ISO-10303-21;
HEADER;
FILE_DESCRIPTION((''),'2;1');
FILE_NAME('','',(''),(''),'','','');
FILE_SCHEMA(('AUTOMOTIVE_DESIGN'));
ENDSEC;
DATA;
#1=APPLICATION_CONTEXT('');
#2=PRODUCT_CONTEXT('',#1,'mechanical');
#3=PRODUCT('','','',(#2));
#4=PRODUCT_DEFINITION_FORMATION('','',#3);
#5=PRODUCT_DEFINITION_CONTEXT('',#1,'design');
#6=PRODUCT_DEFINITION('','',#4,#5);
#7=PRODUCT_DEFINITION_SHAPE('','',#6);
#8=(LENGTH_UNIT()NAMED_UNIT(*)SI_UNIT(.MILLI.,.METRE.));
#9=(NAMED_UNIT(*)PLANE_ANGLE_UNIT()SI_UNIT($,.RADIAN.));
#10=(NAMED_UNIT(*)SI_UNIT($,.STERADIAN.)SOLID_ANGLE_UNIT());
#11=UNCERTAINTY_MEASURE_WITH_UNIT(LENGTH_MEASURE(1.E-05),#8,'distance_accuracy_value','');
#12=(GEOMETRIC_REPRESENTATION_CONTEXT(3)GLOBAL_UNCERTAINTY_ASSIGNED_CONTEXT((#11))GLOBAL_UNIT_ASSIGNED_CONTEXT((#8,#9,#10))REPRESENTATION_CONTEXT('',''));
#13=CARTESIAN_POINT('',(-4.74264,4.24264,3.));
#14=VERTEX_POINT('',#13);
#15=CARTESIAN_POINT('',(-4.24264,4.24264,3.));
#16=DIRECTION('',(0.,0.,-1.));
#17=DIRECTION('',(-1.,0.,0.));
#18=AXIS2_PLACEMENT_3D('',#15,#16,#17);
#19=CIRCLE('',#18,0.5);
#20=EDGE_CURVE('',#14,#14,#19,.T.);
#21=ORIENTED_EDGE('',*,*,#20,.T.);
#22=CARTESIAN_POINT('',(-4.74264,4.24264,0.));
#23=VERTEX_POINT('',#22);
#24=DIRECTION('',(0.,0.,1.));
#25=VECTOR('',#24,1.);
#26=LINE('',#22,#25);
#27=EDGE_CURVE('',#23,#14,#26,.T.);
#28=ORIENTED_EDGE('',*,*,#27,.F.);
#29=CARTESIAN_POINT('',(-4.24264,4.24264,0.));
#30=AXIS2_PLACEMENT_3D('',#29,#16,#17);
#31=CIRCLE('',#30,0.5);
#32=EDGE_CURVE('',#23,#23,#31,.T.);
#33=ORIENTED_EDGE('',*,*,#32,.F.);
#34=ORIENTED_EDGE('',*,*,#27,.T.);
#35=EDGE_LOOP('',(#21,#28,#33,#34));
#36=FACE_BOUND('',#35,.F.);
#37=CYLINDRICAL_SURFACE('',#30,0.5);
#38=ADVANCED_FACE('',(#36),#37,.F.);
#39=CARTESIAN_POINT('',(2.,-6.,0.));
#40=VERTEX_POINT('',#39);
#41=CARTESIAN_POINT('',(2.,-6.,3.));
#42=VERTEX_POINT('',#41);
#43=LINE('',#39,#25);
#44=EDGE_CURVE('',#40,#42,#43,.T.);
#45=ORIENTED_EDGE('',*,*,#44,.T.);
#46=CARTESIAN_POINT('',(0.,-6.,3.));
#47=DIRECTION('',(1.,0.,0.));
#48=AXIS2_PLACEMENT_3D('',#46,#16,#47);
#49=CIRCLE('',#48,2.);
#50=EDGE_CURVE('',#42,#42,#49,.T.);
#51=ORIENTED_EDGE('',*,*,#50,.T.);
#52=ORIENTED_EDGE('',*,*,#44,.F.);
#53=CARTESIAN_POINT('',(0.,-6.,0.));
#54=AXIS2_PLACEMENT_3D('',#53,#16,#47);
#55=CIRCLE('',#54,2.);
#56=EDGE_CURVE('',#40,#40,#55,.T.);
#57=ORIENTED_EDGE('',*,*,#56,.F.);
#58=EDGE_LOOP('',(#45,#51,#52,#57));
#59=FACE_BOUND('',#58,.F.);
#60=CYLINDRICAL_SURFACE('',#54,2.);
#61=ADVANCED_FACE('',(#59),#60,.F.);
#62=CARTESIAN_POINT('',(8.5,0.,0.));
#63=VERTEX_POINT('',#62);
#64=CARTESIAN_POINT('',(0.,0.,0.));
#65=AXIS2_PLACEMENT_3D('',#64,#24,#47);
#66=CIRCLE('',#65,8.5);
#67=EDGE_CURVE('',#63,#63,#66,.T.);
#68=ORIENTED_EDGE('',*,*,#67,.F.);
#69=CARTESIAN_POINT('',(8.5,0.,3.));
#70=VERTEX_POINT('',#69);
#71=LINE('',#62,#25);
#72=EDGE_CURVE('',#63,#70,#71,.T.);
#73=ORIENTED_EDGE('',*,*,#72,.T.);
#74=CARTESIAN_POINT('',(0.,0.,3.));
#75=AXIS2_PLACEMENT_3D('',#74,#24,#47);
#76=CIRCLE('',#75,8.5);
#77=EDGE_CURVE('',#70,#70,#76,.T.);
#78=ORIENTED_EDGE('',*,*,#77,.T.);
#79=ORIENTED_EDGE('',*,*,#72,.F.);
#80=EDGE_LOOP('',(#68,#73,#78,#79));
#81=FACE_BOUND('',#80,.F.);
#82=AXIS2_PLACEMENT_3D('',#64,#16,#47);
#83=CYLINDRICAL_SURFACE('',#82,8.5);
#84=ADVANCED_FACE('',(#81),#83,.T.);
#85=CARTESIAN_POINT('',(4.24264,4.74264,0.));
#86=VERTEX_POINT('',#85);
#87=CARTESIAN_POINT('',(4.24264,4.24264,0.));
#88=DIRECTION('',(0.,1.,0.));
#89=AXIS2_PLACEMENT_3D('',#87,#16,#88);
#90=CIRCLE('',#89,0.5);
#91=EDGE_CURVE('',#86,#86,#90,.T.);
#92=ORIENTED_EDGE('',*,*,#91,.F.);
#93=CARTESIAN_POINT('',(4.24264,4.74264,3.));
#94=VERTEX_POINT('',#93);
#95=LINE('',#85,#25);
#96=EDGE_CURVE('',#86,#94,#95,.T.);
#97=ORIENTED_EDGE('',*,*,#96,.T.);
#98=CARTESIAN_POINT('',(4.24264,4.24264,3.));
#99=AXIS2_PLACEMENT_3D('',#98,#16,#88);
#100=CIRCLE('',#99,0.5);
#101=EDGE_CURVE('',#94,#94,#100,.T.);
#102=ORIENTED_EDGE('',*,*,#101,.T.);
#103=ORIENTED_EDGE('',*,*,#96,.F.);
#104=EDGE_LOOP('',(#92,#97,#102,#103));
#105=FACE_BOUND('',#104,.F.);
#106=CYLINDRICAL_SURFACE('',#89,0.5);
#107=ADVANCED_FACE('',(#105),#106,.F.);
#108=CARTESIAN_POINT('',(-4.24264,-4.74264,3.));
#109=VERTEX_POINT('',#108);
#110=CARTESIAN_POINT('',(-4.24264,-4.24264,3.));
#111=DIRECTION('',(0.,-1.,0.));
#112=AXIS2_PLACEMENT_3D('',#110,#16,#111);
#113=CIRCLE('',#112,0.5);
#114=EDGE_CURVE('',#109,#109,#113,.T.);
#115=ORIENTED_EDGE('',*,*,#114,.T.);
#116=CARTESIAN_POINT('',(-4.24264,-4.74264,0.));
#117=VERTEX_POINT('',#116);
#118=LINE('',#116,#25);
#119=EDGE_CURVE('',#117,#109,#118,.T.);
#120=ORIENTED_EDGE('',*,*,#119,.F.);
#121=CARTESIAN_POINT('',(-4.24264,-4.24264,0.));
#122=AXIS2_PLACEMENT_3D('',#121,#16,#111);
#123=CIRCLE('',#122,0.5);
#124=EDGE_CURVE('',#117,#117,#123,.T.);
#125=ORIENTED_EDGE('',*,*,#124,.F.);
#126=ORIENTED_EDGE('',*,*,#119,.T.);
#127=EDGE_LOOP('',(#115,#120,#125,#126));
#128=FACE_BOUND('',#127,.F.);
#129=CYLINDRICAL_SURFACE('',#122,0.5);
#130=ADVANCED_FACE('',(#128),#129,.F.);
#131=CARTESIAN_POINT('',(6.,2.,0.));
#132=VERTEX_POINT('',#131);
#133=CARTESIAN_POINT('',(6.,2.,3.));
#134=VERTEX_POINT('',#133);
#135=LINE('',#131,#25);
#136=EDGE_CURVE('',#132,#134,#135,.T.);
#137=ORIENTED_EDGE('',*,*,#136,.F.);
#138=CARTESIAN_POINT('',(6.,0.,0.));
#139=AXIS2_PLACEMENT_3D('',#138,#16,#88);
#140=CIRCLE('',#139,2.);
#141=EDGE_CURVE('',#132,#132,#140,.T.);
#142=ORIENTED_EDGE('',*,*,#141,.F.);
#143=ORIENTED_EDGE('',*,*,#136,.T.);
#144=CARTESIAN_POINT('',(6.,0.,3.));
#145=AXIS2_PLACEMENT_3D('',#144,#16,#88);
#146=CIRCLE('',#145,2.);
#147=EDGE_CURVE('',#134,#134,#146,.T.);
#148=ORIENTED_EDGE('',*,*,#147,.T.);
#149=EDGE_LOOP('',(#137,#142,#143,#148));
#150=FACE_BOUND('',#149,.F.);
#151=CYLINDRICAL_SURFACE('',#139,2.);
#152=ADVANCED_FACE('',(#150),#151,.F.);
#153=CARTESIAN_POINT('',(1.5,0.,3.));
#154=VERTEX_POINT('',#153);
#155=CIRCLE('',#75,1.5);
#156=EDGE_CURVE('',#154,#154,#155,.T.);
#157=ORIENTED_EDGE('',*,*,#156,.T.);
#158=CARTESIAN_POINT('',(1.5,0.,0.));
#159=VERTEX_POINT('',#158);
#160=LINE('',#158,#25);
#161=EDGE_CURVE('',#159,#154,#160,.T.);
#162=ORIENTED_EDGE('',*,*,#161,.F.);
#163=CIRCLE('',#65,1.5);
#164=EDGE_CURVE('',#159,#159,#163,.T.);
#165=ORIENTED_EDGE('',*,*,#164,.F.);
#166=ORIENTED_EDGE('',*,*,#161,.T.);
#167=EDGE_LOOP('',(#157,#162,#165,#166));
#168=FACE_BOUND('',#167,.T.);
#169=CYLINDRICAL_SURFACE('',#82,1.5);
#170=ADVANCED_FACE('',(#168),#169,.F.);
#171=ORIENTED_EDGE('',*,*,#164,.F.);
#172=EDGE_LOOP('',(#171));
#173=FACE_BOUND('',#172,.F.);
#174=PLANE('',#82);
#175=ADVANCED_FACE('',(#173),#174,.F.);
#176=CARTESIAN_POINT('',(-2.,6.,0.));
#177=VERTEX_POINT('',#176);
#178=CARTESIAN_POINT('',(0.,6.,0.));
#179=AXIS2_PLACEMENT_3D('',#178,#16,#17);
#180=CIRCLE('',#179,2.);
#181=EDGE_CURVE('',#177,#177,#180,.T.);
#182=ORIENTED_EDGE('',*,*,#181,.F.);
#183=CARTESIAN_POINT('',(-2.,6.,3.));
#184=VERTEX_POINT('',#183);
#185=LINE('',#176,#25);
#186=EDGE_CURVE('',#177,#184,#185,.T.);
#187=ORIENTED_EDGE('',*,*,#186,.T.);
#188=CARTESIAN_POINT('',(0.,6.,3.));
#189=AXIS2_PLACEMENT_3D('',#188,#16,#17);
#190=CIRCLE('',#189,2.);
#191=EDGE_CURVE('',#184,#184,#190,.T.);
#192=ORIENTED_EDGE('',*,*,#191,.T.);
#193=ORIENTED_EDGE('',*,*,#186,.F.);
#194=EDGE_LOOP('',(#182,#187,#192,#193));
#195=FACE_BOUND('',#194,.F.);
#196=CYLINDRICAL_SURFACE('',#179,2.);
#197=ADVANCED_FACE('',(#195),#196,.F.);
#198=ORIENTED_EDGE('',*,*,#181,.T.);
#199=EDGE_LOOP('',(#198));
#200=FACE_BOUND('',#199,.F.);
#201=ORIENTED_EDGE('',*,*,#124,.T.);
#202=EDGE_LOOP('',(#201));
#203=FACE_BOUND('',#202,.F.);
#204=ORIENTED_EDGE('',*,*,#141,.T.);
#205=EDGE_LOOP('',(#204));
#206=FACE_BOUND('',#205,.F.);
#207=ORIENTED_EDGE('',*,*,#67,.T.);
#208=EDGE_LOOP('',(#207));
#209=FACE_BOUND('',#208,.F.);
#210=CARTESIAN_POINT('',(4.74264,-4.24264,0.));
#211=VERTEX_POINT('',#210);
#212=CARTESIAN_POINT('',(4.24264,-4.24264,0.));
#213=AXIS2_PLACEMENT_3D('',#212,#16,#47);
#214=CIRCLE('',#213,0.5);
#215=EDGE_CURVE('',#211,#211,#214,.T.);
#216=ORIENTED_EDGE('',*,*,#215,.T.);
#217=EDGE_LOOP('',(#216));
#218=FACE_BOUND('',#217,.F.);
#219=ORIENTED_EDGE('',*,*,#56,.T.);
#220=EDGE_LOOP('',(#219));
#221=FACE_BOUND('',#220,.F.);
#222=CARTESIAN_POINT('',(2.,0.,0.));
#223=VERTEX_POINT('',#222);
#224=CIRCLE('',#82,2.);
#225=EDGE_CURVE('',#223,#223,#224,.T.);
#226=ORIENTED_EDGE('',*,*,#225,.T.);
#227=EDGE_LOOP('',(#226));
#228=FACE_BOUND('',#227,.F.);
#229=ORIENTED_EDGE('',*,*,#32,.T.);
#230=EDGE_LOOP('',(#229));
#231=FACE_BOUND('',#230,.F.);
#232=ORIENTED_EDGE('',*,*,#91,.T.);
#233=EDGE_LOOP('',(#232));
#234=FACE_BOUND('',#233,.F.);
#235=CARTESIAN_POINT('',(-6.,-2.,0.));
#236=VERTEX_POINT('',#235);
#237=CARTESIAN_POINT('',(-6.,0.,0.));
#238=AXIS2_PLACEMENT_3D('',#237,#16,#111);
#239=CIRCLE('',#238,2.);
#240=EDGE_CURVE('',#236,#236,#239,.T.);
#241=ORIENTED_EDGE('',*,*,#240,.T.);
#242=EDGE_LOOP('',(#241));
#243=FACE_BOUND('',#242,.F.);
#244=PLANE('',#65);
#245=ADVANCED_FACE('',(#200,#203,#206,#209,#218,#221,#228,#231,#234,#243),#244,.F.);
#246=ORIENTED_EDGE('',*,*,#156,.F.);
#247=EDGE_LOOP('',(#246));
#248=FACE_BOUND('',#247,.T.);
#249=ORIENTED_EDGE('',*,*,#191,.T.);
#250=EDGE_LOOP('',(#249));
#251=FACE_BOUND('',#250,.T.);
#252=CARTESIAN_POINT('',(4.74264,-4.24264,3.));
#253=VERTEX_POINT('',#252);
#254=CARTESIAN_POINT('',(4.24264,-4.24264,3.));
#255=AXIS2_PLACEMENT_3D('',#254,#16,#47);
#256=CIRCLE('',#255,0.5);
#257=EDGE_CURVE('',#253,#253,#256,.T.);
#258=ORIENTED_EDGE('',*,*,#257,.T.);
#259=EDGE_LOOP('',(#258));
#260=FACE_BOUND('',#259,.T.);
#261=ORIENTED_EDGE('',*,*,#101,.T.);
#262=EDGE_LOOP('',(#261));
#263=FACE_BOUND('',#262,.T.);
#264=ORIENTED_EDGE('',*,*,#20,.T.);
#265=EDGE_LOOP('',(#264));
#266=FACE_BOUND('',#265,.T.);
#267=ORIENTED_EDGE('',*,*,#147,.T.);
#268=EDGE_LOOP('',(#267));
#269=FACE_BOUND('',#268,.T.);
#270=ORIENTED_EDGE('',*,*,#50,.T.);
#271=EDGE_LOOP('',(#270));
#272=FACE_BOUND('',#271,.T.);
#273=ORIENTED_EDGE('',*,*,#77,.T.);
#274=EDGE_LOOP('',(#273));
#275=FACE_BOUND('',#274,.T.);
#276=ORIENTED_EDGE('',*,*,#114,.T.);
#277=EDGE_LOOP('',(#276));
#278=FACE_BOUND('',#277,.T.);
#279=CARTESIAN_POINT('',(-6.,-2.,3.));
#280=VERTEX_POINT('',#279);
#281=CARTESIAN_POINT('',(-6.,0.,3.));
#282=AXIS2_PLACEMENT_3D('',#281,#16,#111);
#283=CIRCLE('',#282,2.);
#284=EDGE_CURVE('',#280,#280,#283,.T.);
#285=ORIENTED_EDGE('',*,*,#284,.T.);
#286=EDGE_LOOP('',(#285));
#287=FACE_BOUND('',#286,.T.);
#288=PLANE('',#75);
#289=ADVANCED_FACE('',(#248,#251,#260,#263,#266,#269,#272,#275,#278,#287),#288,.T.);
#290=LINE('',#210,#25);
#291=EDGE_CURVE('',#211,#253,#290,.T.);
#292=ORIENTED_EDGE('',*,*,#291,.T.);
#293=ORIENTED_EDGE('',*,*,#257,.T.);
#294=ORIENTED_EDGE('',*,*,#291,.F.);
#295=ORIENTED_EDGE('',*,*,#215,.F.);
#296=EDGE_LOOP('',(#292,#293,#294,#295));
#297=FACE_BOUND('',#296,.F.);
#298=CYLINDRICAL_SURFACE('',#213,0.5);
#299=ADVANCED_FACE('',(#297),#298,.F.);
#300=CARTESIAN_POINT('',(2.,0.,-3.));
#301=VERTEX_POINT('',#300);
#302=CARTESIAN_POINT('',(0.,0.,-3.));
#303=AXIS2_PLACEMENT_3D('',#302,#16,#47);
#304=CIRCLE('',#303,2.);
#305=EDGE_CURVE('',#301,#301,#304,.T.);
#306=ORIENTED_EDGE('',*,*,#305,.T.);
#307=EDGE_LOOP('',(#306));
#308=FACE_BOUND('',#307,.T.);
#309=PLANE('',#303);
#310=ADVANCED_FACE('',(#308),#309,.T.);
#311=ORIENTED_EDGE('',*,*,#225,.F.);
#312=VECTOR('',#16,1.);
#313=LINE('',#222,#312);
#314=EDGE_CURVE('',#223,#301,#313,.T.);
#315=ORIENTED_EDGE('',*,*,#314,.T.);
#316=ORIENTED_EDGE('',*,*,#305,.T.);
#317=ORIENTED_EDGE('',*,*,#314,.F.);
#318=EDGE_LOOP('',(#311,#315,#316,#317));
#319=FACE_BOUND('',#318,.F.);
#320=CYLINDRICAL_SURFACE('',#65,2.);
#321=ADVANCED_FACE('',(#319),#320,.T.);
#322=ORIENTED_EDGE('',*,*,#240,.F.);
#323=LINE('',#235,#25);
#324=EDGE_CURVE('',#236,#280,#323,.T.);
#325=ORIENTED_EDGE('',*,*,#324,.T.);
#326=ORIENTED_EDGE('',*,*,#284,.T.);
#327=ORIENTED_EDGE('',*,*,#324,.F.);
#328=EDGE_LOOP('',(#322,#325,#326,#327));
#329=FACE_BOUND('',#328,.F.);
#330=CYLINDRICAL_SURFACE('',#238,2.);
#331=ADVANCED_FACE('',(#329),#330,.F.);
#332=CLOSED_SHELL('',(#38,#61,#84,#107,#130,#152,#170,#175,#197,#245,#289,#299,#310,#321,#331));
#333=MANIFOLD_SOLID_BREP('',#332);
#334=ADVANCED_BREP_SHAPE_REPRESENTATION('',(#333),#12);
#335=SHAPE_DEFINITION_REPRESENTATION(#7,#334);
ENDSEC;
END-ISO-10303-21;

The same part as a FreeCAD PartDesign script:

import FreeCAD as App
import Part
import Sketcher
from FreeCAD import Vector
Q = App.Units.Quantity

doc = App.newDocument("Part")
body = doc.addObject("PartDesign::Body", "Body")

# Sketch on XY plane
sketch1 = body.newObject("Sketcher::SketchObject", "Sketch")
sketch1.AttachmentSupport = (doc.getObject("XY_Plane"), [""])
sketch1.MapMode = "FlatFace"
sketch1.addGeometry([
    Part.Circle(Vector(0, 0, 0), Vector(0, 0, 1), 8.5),
    Part.Circle(Vector(0, 0, 0), Vector(0, 0, 1), 1.5),
], False)
sketch1.addConstraint([
    Sketcher.Constraint("Coincident", 0, 3, -1, 1),
    Sketcher.Constraint("Coincident", 1, 3, -1, 1),
    Sketcher.Constraint("Diameter", 0, Q("17 mm")),
    Sketcher.Constraint("Diameter", 1, Q("3 mm")),
])
pad1 = body.newObject("PartDesign::Pad", "Pad")
pad1.Profile = sketch1
pad1.Length = 3

# Sketch on XY plane
sketch2 = body.newObject("Sketcher::SketchObject", "Sketch001")
sketch2.AttachmentSupport = (doc.getObject("XY_Plane"), [""])
sketch2.MapMode = "FlatFace"
sketch2.addGeometry([
    Part.Circle(Vector(0, -6, 0), Vector(0, 0, 1), 2),
    Part.Circle(Vector(4.2, -4.2, 0), Vector(0, 0, 1), 0.5),
], False)
sketch2.addConstraint([
    Sketcher.Constraint("PointOnObject", 0, 3, -2),
    Sketcher.Constraint("Diameter", 0, Q("4 mm")),
    Sketcher.Constraint("Diameter", 1, Q("1 mm")),
    Sketcher.Constraint("DistanceY", 0, 3, -1, 1, Q("6 mm")),
    Sketcher.Constraint("DistanceX", -1, 1, 1, 3, Q("4.24264 mm")),
    Sketcher.Constraint("DistanceY", 1, 3, -1, 1, Q("4.24264 mm")),
])
pocket1 = body.newObject("PartDesign::Pocket", "Pocket")
pocket1.Profile = sketch2
pocket1.Length = 3
pocket1.Reversed = True
doc.recompute()

polarpattern = body.newObject("PartDesign::PolarPattern", "PolarPattern")
polarpattern.Originals = [pocket1]
polarpattern.Axis = (doc.getObject("Z_Axis"), [""])
polarpattern.Angle = 360
polarpattern.Occurrences = 4
body.Tip = polarpattern

# Sketch on XY plane
sketch3 = body.newObject("Sketcher::SketchObject", "Sketch002")
sketch3.AttachmentSupport = (doc.getObject("XY_Plane"), [""])
sketch3.MapMode = "FlatFace"
sketch3.addGeometry(Part.Circle(Vector(0, 0, 0), Vector(0, 0, 1), 2), False)
sketch3.addConstraint([
    Sketcher.Constraint("Coincident", 0, 3, -1, 1),
    Sketcher.Constraint("Diameter", 0, Q("4 mm")),
])
pad2 = body.newObject("PartDesign::Pad", "Pad001")
pad2.Profile = sketch3
pad2.Length = 3
pad2.Reversed = True

doc.recompute()
